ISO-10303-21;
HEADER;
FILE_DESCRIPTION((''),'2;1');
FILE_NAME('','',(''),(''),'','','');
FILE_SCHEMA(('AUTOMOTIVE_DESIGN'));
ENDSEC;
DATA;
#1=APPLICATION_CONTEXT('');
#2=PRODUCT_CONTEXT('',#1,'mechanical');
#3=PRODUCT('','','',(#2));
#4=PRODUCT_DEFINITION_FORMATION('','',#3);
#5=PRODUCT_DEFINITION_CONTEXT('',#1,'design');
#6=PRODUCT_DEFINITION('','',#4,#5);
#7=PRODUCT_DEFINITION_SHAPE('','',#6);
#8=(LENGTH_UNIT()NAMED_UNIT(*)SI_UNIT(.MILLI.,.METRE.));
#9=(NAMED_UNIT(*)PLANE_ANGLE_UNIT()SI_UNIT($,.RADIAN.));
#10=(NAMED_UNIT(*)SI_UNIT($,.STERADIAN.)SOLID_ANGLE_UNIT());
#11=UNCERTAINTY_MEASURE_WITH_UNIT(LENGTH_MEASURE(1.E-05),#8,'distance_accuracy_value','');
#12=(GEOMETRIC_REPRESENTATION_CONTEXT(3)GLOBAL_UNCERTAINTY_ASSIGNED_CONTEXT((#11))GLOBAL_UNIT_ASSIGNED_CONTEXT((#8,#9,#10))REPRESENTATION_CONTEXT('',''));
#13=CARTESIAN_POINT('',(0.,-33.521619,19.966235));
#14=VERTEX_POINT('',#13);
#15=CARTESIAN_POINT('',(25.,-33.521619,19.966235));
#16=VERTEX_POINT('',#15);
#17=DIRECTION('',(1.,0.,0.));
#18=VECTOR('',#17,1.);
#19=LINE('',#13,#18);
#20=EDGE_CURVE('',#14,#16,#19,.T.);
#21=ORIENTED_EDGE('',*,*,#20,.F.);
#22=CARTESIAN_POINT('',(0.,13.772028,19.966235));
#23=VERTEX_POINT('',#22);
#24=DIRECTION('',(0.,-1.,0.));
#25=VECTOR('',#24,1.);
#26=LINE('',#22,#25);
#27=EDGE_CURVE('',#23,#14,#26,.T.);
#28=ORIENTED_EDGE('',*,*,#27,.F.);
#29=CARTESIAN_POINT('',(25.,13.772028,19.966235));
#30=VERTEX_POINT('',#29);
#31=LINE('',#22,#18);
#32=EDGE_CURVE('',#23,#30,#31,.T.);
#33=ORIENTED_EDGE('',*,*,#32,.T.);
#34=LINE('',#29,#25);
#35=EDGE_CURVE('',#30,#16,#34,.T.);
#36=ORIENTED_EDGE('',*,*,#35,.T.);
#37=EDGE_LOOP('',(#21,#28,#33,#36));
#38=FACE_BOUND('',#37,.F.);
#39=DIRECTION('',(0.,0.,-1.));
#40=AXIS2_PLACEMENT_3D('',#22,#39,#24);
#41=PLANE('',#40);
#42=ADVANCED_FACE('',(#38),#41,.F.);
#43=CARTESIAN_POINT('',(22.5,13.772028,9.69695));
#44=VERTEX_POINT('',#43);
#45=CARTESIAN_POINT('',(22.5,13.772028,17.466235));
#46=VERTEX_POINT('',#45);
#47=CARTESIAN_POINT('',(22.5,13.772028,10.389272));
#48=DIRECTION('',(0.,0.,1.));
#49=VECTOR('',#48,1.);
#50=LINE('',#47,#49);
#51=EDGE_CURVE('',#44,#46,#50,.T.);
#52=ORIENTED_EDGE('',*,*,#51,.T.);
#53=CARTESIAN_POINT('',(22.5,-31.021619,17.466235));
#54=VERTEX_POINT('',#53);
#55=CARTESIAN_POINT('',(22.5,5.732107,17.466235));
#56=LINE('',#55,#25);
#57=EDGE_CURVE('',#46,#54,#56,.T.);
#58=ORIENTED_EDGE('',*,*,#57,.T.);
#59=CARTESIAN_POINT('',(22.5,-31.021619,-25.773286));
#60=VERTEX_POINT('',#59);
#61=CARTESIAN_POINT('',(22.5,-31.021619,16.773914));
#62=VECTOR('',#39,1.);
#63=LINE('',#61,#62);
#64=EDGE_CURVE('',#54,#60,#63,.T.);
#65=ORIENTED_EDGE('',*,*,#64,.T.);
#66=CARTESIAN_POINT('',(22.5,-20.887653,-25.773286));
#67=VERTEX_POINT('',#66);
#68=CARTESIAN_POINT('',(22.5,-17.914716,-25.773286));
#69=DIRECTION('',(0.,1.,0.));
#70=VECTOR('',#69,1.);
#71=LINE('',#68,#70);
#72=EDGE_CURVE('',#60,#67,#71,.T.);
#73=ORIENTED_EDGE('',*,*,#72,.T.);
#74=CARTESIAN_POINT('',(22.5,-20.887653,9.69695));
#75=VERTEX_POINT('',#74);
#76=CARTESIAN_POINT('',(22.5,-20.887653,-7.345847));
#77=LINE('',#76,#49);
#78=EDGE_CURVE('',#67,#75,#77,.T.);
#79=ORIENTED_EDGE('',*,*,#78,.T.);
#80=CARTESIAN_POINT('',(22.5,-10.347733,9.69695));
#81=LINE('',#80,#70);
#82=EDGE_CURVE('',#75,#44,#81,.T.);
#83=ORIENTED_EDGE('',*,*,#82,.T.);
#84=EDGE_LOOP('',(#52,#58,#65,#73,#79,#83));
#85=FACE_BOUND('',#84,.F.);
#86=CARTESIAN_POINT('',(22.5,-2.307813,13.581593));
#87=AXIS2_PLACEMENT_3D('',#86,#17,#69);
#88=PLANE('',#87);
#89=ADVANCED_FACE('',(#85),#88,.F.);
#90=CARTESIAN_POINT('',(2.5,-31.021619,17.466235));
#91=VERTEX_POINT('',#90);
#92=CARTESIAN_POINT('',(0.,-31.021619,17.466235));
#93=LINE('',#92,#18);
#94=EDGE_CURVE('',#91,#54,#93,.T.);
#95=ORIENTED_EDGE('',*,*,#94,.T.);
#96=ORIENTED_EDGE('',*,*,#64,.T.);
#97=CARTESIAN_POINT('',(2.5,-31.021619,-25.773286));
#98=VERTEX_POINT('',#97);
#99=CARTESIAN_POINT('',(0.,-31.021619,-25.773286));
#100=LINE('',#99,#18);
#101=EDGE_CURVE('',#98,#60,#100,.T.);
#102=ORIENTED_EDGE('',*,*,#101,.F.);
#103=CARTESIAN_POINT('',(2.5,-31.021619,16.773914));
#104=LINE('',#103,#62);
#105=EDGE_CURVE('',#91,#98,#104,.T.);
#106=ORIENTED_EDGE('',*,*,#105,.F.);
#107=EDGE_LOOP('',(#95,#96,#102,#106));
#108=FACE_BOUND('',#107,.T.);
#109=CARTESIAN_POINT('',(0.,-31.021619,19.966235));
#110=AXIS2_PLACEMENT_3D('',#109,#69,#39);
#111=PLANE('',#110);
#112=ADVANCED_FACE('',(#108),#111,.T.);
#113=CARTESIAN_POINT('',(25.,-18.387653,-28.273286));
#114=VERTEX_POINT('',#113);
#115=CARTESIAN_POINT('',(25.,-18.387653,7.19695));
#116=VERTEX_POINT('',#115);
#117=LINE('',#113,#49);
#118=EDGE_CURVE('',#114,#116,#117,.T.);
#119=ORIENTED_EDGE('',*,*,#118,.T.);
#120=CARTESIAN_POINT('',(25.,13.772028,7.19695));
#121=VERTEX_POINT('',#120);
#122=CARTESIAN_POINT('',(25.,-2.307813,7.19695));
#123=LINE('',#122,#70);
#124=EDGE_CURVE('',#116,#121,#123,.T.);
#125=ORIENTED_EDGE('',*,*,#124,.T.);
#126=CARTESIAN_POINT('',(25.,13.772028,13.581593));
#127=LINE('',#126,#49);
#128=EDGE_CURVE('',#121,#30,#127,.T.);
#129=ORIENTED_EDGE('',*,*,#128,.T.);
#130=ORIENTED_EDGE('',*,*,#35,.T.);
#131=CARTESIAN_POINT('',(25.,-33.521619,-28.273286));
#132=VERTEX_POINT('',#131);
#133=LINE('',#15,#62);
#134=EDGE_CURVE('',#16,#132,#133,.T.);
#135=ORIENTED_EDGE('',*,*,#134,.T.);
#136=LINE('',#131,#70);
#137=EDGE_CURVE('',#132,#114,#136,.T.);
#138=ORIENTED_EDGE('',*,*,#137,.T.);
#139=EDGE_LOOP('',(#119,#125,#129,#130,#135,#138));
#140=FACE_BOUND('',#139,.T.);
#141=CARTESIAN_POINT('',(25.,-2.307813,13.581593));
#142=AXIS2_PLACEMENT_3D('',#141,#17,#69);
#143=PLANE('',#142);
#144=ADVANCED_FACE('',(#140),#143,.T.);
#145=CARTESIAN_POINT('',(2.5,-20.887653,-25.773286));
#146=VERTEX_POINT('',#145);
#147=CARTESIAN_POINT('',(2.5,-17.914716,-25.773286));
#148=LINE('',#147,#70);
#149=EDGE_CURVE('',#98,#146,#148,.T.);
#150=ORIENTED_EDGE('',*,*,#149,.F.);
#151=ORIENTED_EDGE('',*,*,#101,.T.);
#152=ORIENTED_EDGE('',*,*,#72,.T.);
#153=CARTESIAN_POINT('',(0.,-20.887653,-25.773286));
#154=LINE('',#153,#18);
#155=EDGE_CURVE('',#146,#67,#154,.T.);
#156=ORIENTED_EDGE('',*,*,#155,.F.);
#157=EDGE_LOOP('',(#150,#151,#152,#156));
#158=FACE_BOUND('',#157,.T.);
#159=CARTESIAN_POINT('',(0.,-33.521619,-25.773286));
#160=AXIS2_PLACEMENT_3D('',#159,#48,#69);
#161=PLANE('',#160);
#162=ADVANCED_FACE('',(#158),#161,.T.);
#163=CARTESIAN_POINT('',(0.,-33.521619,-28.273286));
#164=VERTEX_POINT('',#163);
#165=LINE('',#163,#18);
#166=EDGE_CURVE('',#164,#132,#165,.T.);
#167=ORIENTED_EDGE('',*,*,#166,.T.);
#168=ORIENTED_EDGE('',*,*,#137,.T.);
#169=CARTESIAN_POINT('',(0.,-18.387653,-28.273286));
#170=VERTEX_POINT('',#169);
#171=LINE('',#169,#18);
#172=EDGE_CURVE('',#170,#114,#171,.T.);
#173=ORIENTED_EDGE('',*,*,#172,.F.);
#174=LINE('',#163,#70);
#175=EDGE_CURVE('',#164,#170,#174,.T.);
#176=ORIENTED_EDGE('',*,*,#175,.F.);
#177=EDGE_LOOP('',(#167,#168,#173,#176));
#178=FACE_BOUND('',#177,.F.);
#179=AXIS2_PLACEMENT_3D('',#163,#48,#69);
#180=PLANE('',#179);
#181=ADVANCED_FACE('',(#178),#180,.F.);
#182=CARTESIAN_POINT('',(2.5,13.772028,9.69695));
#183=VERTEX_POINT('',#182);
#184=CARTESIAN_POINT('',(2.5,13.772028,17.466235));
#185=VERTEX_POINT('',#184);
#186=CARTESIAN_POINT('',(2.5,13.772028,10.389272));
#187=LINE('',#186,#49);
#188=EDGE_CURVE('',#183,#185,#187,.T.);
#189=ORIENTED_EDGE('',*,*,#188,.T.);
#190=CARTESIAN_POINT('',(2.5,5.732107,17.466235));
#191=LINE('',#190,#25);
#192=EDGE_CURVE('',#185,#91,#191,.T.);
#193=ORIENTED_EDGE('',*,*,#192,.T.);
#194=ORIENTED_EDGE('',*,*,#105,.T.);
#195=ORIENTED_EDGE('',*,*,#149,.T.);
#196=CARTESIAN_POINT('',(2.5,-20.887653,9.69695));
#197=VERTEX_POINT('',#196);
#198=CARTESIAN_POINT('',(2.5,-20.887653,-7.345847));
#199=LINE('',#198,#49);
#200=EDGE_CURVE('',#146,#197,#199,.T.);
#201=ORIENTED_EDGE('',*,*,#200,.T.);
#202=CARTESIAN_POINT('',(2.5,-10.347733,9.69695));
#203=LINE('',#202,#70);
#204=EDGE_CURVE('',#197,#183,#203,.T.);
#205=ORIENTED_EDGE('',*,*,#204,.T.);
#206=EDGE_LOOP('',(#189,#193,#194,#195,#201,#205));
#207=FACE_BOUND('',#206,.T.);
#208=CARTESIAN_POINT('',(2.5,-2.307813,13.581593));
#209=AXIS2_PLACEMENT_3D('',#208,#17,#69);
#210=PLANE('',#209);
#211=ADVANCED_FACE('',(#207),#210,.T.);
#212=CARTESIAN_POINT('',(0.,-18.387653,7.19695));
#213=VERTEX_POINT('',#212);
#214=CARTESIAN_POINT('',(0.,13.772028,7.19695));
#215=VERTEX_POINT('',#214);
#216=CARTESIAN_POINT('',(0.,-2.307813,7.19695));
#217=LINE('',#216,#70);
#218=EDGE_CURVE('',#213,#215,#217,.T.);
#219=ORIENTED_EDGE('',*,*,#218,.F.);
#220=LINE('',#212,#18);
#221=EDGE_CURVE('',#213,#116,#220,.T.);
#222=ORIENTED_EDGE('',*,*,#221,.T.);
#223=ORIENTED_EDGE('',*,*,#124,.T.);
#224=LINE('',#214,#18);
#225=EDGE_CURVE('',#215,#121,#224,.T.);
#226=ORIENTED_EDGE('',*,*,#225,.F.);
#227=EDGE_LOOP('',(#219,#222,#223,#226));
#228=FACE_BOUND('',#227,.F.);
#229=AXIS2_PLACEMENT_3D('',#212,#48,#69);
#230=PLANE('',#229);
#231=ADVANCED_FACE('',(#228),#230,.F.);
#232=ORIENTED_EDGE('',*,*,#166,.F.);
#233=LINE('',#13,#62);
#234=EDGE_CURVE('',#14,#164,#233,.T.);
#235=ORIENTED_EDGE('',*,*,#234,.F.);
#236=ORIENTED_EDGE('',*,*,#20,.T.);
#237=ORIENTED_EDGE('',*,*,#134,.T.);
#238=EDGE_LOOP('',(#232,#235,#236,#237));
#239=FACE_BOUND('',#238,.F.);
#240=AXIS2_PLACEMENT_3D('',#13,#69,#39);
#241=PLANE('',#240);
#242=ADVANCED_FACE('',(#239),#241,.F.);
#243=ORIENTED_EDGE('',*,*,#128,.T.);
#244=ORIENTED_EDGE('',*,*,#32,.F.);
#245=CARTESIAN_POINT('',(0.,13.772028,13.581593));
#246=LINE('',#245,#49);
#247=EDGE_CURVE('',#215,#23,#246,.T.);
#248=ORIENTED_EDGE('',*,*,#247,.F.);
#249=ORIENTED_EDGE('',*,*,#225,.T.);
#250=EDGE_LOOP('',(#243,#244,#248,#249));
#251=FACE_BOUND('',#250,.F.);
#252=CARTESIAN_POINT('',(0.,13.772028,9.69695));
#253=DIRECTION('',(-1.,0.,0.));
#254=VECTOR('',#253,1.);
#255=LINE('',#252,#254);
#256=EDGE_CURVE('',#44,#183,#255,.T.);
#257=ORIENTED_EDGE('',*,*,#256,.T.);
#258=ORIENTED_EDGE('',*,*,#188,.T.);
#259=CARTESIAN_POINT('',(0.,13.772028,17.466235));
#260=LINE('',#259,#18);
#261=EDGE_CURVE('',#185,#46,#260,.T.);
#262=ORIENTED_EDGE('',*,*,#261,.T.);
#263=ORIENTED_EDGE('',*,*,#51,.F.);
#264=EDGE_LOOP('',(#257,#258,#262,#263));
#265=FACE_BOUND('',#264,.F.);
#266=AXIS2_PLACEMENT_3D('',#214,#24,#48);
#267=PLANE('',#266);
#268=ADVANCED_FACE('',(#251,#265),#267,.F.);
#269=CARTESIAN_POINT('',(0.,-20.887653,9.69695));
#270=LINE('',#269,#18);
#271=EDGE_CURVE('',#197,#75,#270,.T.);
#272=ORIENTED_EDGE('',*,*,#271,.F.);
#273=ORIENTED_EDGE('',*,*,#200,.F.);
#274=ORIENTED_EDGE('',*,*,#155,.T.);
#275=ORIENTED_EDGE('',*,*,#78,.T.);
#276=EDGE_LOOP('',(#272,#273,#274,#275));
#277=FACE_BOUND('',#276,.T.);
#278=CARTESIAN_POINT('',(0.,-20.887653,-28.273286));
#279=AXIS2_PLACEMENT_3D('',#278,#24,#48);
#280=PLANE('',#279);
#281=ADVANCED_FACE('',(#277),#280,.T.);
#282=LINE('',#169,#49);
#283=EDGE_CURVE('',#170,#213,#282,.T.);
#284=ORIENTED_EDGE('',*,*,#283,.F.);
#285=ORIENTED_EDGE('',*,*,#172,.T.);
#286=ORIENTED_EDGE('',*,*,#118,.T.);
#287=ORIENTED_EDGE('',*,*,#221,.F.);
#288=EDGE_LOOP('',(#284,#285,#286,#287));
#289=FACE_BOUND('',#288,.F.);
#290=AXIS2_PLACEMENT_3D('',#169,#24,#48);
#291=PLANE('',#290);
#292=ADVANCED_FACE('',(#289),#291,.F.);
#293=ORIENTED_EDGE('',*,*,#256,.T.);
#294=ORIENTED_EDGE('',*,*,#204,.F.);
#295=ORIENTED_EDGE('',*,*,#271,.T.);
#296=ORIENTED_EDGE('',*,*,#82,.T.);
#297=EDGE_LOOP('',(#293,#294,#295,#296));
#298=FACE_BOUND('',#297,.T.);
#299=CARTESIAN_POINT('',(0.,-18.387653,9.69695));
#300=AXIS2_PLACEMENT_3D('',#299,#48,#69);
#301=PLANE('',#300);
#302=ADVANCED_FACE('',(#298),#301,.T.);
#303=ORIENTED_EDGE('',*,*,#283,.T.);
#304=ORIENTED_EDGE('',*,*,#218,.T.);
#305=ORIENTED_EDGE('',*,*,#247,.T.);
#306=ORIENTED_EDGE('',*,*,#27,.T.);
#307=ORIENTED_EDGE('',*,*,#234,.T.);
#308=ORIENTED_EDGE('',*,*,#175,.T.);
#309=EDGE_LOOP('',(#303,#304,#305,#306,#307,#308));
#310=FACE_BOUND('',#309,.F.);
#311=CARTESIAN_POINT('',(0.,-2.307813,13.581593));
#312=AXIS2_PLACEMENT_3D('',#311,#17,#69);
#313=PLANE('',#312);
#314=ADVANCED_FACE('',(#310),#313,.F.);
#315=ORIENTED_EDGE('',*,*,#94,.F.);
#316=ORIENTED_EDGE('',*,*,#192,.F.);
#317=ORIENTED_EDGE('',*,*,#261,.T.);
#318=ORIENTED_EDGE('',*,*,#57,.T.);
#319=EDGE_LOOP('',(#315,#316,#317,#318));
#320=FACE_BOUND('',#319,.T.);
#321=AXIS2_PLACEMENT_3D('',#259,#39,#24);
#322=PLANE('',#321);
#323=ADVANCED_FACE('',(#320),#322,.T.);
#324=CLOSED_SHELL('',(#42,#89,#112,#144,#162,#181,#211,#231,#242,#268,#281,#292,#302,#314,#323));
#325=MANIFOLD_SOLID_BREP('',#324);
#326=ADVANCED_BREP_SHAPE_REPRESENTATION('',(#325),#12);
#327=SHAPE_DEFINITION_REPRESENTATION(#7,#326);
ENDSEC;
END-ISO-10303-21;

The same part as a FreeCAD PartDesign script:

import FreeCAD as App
import Part
import Sketcher

V = App.Vector
Q = App.Units.Quantity


def faces_at(feature, points):
    """Names of the faces that lie closest to the given points."""
    faces = feature.Shape.Faces
    near = lambda p: min(range(len(faces)), key=lambda i: faces[i].distToShape(Part.Vertex(*p))[0])
    return sorted({f"Face{near(p) + 1}" for p in points})

doc = App.newDocument("Part")
params = doc.addObject("Spreadsheet::Sheet", "Params")
for row, (alias, value) in enumerate([
    ("pad1_length", "25 mm"),
    ("thickness_wall", "2.5 mm"),
], start=1):
    params.set(f"A{row}", alias)
    params.set(f"B{row}", "=" + value)
    params.setAlias(f"B{row}", alias)

body = doc.addObject("PartDesign::Body", "Body")

# Sketch on YZ plane
sketch1 = body.newObject("Sketcher::SketchObject", "Sketch")
sketch1.AttachmentSupport = (doc.getObject("YZ_Plane"), [""])
sketch1.MapMode = "FlatFace"
sketch1.addGeometry(Part.LineSegment(V(-18.387653, 7.19695, 0), V(13.772028, 7.19695, 0)), False)
sketch1.addGeometry(Part.LineSegment(V(13.772028, 7.19695, 0), V(13.772028, 19.966235, 0)), False)
sketch1.addGeometry(Part.LineSegment(V(13.772028, 19.966235, 0), V(-33.521619, 19.966235, 0)), False)
sketch1.addGeometry(Part.LineSegment(V(-33.521619, 19.966235, 0), V(-33.521619, -28.273286, 0)), False)
sketch1.addGeometry(Part.LineSegment(V(-33.521619, -28.273286, 0), V(-18.387653, -28.273286, 0)), False)
sketch1.addGeometry(Part.LineSegment(V(-18.387653, -28.273286, 0), V(-18.387653, 7.19695, 0)), False)
sketch1.addConstraint(Sketcher.Constraint("Coincident", 0, 2, 1, 1))
sketch1.addConstraint(Sketcher.Constraint("Coincident", 1, 2, 2, 1))
sketch1.addConstraint(Sketcher.Constraint("Coincident", 2, 2, 3, 1))
sketch1.addConstraint(Sketcher.Constraint("Coincident", 3, 2, 4, 1))
sketch1.addConstraint(Sketcher.Constraint("Coincident", 4, 2, 5, 1))
sketch1.addConstraint(Sketcher.Constraint("Coincident", 5, 2, 0, 1))
sketch1.addConstraint(Sketcher.Constraint("Horizontal", 0))
sketch1.addConstraint(Sketcher.Constraint("Vertical", 1))
sketch1.addConstraint(Sketcher.Constraint("Horizontal", 2))
sketch1.addConstraint(Sketcher.Constraint("Vertical", 3))
sketch1.addConstraint(Sketcher.Constraint("Horizontal", 4))
sketch1.addConstraint(Sketcher.Constraint("Vertical", 5))
sketch1.addConstraint(Sketcher.Constraint("DistanceX", 0, 1, 0, 2, Q("32.159681 mm")))
sketch1.addConstraint(Sketcher.Constraint("DistanceY", 3, 2, 3, 1, Q("48.239522 mm")))
sketch1.addConstraint(Sketcher.Constraint("DistanceX", 2, 2, 2, 1, Q("47.293646 mm")))
sketch1.addConstraint(Sketcher.Constraint("DistanceY", 1, 1, 1, 2, Q("12.769285 mm")))
sketch1.addConstraint(Sketcher.Constraint("DistanceY", -1, 1, 0, 2, Q("7.19695 mm")))
sketch1.addConstraint(Sketcher.Constraint("DistanceX", 2, 2, -1, 1, Q("33.521619 mm")))
pad1 = body.newObject("PartDesign::Pad", "Pad")
pad1.Profile = sketch1
pad1.setExpression("Length", "Params.pad1_length")
doc.recompute()

thickness = body.newObject("PartDesign::Thickness", "Thickness")
thickness.Base = (pad1, faces_at(pad1, [(12.5, 13.772, 13.582)]))
thickness.setExpression("Value", "Params.thickness_wall")
thickness.Reversed = True
thickness.Join = "Intersection"

doc.recompute()
